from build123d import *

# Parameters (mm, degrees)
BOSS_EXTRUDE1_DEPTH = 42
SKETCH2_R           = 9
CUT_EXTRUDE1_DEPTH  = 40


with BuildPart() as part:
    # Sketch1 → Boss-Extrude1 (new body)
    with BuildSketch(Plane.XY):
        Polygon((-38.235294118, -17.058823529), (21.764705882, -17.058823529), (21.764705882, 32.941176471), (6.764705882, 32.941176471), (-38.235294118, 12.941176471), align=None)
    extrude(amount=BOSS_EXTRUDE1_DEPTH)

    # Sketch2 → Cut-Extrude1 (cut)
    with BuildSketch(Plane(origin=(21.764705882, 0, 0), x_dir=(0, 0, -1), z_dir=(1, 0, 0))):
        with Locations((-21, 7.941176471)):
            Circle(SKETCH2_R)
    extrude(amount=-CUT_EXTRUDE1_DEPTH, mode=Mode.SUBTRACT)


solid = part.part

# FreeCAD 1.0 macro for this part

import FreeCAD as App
import Part
import Sketcher


def add_polygon(sketch, points):
    """Adds a closed chain of lines whose ends are joined by coincident constraints."""
    first, n = sketch.GeometryCount, len(points)
    for a, b in zip(points, points[1:] + points[:1]):
        sketch.addGeometry(Part.LineSegment(App.Vector(*a, 0), App.Vector(*b, 0)), False)
    for i in range(n):
        sketch.addConstraint(Sketcher.Constraint("Coincident", first + i, 2, first + (i + 1) % n, 1))

doc = App.newDocument("Part")
params = doc.addObject("Spreadsheet::Sheet", "Params")
for row, (alias, value) in enumerate([
    ("sketch1_width", "60 mm"),
    ("sketch1_width2", "15 mm"),
    ("sketch1_height", "50 mm"),
    ("sketch1_height2", "30 mm"),
    ("pad1_length", "42 mm"),
    ("sketch2_diameter", "18 mm"),
    ("pocket1_length", "40 mm"),
], start=1):
    params.set(f"A{row}", alias)
    params.set(f"B{row}", "=" + value)
    params.setAlias(f"B{row}", alias)

body = doc.addObject("PartDesign::Body", "Body")

# Sketch on XY plane
sketch1 = body.newObject("Sketcher::SketchObject", "Sketch")
sketch1.AttachmentSupport = (doc.getObject("XY_Plane"), [""])
sketch1.MapMode = "FlatFace"
add_polygon(sketch1, [(-38, -17), (22, -17), (22, 33), (7, 33), (-38, 13)])  # lines 0-4
sketch1.addConstraint([
    Sketcher.Constraint("Horizontal", 0),
    Sketcher.Constraint("Vertical", 1),
    Sketcher.Constraint("Horizontal", 2),
    Sketcher.Constraint("Vertical", 4),
    Sketcher.Constraint("DistanceX", 0, 1, 0, 2, 60.0),
    Sketcher.Constraint("DistanceX", 2, 2, 2, 1, 15.0),
    Sketcher.Constraint("DistanceY", 1, 1, 1, 2, 50.0),
    Sketcher.Constraint("DistanceY", 4, 2, 4, 1, 30.0),
    Sketcher.Constraint("DistanceX", -1, 1, 0, 2, 21.764706),
    Sketcher.Constraint("DistanceY", 0, 2, -1, 1, 17.058824),
])
sketch1.setExpression("Constraints[9]", "Params.sketch1_width")
sketch1.setExpression("Constraints[10]", "Params.sketch1_width2")
sketch1.setExpression("Constraints[11]", "Params.sketch1_height")
sketch1.setExpression("Constraints[12]", "Params.sketch1_height2")
pad1 = body.newObject("PartDesign::Pad", "Pad")
pad1.Profile = sketch1
pad1.setExpression("Length", "Params.pad1_length")

# Sketch on YZ plane
sketch2 = body.newObject("Sketcher::SketchObject", "Sketch001")
sketch2.AttachmentSupport = (doc.getObject("YZ_Plane"), [""])
sketch2.MapMode = "FlatFace"
sketch2.AttachmentOffset = App.Placement(App.Vector(0, 0, 21.764706), App.Rotation())
sketch2.addGeometry(Part.Circle(App.Vector(8, 21, 0), App.Vector(0, 0, 1), 9), False)
sketch2.addConstraint([
    Sketcher.Constraint("Diameter", 0, 18.0),
    Sketcher.Constraint("DistanceY", -1, 1, 0, 3, 21.0),
    Sketcher.Constraint("DistanceX", -1, 1, 0, 3, 7.941176),
])
sketch2.setExpression("Constraints[0]", "Params.sketch2_diameter")
pocket1 = body.newObject("PartDesign::Pocket", "Pocket")
pocket1.Profile = sketch2
pocket1.setExpression("Length", "Params.pocket1_length")

doc.recompute()
